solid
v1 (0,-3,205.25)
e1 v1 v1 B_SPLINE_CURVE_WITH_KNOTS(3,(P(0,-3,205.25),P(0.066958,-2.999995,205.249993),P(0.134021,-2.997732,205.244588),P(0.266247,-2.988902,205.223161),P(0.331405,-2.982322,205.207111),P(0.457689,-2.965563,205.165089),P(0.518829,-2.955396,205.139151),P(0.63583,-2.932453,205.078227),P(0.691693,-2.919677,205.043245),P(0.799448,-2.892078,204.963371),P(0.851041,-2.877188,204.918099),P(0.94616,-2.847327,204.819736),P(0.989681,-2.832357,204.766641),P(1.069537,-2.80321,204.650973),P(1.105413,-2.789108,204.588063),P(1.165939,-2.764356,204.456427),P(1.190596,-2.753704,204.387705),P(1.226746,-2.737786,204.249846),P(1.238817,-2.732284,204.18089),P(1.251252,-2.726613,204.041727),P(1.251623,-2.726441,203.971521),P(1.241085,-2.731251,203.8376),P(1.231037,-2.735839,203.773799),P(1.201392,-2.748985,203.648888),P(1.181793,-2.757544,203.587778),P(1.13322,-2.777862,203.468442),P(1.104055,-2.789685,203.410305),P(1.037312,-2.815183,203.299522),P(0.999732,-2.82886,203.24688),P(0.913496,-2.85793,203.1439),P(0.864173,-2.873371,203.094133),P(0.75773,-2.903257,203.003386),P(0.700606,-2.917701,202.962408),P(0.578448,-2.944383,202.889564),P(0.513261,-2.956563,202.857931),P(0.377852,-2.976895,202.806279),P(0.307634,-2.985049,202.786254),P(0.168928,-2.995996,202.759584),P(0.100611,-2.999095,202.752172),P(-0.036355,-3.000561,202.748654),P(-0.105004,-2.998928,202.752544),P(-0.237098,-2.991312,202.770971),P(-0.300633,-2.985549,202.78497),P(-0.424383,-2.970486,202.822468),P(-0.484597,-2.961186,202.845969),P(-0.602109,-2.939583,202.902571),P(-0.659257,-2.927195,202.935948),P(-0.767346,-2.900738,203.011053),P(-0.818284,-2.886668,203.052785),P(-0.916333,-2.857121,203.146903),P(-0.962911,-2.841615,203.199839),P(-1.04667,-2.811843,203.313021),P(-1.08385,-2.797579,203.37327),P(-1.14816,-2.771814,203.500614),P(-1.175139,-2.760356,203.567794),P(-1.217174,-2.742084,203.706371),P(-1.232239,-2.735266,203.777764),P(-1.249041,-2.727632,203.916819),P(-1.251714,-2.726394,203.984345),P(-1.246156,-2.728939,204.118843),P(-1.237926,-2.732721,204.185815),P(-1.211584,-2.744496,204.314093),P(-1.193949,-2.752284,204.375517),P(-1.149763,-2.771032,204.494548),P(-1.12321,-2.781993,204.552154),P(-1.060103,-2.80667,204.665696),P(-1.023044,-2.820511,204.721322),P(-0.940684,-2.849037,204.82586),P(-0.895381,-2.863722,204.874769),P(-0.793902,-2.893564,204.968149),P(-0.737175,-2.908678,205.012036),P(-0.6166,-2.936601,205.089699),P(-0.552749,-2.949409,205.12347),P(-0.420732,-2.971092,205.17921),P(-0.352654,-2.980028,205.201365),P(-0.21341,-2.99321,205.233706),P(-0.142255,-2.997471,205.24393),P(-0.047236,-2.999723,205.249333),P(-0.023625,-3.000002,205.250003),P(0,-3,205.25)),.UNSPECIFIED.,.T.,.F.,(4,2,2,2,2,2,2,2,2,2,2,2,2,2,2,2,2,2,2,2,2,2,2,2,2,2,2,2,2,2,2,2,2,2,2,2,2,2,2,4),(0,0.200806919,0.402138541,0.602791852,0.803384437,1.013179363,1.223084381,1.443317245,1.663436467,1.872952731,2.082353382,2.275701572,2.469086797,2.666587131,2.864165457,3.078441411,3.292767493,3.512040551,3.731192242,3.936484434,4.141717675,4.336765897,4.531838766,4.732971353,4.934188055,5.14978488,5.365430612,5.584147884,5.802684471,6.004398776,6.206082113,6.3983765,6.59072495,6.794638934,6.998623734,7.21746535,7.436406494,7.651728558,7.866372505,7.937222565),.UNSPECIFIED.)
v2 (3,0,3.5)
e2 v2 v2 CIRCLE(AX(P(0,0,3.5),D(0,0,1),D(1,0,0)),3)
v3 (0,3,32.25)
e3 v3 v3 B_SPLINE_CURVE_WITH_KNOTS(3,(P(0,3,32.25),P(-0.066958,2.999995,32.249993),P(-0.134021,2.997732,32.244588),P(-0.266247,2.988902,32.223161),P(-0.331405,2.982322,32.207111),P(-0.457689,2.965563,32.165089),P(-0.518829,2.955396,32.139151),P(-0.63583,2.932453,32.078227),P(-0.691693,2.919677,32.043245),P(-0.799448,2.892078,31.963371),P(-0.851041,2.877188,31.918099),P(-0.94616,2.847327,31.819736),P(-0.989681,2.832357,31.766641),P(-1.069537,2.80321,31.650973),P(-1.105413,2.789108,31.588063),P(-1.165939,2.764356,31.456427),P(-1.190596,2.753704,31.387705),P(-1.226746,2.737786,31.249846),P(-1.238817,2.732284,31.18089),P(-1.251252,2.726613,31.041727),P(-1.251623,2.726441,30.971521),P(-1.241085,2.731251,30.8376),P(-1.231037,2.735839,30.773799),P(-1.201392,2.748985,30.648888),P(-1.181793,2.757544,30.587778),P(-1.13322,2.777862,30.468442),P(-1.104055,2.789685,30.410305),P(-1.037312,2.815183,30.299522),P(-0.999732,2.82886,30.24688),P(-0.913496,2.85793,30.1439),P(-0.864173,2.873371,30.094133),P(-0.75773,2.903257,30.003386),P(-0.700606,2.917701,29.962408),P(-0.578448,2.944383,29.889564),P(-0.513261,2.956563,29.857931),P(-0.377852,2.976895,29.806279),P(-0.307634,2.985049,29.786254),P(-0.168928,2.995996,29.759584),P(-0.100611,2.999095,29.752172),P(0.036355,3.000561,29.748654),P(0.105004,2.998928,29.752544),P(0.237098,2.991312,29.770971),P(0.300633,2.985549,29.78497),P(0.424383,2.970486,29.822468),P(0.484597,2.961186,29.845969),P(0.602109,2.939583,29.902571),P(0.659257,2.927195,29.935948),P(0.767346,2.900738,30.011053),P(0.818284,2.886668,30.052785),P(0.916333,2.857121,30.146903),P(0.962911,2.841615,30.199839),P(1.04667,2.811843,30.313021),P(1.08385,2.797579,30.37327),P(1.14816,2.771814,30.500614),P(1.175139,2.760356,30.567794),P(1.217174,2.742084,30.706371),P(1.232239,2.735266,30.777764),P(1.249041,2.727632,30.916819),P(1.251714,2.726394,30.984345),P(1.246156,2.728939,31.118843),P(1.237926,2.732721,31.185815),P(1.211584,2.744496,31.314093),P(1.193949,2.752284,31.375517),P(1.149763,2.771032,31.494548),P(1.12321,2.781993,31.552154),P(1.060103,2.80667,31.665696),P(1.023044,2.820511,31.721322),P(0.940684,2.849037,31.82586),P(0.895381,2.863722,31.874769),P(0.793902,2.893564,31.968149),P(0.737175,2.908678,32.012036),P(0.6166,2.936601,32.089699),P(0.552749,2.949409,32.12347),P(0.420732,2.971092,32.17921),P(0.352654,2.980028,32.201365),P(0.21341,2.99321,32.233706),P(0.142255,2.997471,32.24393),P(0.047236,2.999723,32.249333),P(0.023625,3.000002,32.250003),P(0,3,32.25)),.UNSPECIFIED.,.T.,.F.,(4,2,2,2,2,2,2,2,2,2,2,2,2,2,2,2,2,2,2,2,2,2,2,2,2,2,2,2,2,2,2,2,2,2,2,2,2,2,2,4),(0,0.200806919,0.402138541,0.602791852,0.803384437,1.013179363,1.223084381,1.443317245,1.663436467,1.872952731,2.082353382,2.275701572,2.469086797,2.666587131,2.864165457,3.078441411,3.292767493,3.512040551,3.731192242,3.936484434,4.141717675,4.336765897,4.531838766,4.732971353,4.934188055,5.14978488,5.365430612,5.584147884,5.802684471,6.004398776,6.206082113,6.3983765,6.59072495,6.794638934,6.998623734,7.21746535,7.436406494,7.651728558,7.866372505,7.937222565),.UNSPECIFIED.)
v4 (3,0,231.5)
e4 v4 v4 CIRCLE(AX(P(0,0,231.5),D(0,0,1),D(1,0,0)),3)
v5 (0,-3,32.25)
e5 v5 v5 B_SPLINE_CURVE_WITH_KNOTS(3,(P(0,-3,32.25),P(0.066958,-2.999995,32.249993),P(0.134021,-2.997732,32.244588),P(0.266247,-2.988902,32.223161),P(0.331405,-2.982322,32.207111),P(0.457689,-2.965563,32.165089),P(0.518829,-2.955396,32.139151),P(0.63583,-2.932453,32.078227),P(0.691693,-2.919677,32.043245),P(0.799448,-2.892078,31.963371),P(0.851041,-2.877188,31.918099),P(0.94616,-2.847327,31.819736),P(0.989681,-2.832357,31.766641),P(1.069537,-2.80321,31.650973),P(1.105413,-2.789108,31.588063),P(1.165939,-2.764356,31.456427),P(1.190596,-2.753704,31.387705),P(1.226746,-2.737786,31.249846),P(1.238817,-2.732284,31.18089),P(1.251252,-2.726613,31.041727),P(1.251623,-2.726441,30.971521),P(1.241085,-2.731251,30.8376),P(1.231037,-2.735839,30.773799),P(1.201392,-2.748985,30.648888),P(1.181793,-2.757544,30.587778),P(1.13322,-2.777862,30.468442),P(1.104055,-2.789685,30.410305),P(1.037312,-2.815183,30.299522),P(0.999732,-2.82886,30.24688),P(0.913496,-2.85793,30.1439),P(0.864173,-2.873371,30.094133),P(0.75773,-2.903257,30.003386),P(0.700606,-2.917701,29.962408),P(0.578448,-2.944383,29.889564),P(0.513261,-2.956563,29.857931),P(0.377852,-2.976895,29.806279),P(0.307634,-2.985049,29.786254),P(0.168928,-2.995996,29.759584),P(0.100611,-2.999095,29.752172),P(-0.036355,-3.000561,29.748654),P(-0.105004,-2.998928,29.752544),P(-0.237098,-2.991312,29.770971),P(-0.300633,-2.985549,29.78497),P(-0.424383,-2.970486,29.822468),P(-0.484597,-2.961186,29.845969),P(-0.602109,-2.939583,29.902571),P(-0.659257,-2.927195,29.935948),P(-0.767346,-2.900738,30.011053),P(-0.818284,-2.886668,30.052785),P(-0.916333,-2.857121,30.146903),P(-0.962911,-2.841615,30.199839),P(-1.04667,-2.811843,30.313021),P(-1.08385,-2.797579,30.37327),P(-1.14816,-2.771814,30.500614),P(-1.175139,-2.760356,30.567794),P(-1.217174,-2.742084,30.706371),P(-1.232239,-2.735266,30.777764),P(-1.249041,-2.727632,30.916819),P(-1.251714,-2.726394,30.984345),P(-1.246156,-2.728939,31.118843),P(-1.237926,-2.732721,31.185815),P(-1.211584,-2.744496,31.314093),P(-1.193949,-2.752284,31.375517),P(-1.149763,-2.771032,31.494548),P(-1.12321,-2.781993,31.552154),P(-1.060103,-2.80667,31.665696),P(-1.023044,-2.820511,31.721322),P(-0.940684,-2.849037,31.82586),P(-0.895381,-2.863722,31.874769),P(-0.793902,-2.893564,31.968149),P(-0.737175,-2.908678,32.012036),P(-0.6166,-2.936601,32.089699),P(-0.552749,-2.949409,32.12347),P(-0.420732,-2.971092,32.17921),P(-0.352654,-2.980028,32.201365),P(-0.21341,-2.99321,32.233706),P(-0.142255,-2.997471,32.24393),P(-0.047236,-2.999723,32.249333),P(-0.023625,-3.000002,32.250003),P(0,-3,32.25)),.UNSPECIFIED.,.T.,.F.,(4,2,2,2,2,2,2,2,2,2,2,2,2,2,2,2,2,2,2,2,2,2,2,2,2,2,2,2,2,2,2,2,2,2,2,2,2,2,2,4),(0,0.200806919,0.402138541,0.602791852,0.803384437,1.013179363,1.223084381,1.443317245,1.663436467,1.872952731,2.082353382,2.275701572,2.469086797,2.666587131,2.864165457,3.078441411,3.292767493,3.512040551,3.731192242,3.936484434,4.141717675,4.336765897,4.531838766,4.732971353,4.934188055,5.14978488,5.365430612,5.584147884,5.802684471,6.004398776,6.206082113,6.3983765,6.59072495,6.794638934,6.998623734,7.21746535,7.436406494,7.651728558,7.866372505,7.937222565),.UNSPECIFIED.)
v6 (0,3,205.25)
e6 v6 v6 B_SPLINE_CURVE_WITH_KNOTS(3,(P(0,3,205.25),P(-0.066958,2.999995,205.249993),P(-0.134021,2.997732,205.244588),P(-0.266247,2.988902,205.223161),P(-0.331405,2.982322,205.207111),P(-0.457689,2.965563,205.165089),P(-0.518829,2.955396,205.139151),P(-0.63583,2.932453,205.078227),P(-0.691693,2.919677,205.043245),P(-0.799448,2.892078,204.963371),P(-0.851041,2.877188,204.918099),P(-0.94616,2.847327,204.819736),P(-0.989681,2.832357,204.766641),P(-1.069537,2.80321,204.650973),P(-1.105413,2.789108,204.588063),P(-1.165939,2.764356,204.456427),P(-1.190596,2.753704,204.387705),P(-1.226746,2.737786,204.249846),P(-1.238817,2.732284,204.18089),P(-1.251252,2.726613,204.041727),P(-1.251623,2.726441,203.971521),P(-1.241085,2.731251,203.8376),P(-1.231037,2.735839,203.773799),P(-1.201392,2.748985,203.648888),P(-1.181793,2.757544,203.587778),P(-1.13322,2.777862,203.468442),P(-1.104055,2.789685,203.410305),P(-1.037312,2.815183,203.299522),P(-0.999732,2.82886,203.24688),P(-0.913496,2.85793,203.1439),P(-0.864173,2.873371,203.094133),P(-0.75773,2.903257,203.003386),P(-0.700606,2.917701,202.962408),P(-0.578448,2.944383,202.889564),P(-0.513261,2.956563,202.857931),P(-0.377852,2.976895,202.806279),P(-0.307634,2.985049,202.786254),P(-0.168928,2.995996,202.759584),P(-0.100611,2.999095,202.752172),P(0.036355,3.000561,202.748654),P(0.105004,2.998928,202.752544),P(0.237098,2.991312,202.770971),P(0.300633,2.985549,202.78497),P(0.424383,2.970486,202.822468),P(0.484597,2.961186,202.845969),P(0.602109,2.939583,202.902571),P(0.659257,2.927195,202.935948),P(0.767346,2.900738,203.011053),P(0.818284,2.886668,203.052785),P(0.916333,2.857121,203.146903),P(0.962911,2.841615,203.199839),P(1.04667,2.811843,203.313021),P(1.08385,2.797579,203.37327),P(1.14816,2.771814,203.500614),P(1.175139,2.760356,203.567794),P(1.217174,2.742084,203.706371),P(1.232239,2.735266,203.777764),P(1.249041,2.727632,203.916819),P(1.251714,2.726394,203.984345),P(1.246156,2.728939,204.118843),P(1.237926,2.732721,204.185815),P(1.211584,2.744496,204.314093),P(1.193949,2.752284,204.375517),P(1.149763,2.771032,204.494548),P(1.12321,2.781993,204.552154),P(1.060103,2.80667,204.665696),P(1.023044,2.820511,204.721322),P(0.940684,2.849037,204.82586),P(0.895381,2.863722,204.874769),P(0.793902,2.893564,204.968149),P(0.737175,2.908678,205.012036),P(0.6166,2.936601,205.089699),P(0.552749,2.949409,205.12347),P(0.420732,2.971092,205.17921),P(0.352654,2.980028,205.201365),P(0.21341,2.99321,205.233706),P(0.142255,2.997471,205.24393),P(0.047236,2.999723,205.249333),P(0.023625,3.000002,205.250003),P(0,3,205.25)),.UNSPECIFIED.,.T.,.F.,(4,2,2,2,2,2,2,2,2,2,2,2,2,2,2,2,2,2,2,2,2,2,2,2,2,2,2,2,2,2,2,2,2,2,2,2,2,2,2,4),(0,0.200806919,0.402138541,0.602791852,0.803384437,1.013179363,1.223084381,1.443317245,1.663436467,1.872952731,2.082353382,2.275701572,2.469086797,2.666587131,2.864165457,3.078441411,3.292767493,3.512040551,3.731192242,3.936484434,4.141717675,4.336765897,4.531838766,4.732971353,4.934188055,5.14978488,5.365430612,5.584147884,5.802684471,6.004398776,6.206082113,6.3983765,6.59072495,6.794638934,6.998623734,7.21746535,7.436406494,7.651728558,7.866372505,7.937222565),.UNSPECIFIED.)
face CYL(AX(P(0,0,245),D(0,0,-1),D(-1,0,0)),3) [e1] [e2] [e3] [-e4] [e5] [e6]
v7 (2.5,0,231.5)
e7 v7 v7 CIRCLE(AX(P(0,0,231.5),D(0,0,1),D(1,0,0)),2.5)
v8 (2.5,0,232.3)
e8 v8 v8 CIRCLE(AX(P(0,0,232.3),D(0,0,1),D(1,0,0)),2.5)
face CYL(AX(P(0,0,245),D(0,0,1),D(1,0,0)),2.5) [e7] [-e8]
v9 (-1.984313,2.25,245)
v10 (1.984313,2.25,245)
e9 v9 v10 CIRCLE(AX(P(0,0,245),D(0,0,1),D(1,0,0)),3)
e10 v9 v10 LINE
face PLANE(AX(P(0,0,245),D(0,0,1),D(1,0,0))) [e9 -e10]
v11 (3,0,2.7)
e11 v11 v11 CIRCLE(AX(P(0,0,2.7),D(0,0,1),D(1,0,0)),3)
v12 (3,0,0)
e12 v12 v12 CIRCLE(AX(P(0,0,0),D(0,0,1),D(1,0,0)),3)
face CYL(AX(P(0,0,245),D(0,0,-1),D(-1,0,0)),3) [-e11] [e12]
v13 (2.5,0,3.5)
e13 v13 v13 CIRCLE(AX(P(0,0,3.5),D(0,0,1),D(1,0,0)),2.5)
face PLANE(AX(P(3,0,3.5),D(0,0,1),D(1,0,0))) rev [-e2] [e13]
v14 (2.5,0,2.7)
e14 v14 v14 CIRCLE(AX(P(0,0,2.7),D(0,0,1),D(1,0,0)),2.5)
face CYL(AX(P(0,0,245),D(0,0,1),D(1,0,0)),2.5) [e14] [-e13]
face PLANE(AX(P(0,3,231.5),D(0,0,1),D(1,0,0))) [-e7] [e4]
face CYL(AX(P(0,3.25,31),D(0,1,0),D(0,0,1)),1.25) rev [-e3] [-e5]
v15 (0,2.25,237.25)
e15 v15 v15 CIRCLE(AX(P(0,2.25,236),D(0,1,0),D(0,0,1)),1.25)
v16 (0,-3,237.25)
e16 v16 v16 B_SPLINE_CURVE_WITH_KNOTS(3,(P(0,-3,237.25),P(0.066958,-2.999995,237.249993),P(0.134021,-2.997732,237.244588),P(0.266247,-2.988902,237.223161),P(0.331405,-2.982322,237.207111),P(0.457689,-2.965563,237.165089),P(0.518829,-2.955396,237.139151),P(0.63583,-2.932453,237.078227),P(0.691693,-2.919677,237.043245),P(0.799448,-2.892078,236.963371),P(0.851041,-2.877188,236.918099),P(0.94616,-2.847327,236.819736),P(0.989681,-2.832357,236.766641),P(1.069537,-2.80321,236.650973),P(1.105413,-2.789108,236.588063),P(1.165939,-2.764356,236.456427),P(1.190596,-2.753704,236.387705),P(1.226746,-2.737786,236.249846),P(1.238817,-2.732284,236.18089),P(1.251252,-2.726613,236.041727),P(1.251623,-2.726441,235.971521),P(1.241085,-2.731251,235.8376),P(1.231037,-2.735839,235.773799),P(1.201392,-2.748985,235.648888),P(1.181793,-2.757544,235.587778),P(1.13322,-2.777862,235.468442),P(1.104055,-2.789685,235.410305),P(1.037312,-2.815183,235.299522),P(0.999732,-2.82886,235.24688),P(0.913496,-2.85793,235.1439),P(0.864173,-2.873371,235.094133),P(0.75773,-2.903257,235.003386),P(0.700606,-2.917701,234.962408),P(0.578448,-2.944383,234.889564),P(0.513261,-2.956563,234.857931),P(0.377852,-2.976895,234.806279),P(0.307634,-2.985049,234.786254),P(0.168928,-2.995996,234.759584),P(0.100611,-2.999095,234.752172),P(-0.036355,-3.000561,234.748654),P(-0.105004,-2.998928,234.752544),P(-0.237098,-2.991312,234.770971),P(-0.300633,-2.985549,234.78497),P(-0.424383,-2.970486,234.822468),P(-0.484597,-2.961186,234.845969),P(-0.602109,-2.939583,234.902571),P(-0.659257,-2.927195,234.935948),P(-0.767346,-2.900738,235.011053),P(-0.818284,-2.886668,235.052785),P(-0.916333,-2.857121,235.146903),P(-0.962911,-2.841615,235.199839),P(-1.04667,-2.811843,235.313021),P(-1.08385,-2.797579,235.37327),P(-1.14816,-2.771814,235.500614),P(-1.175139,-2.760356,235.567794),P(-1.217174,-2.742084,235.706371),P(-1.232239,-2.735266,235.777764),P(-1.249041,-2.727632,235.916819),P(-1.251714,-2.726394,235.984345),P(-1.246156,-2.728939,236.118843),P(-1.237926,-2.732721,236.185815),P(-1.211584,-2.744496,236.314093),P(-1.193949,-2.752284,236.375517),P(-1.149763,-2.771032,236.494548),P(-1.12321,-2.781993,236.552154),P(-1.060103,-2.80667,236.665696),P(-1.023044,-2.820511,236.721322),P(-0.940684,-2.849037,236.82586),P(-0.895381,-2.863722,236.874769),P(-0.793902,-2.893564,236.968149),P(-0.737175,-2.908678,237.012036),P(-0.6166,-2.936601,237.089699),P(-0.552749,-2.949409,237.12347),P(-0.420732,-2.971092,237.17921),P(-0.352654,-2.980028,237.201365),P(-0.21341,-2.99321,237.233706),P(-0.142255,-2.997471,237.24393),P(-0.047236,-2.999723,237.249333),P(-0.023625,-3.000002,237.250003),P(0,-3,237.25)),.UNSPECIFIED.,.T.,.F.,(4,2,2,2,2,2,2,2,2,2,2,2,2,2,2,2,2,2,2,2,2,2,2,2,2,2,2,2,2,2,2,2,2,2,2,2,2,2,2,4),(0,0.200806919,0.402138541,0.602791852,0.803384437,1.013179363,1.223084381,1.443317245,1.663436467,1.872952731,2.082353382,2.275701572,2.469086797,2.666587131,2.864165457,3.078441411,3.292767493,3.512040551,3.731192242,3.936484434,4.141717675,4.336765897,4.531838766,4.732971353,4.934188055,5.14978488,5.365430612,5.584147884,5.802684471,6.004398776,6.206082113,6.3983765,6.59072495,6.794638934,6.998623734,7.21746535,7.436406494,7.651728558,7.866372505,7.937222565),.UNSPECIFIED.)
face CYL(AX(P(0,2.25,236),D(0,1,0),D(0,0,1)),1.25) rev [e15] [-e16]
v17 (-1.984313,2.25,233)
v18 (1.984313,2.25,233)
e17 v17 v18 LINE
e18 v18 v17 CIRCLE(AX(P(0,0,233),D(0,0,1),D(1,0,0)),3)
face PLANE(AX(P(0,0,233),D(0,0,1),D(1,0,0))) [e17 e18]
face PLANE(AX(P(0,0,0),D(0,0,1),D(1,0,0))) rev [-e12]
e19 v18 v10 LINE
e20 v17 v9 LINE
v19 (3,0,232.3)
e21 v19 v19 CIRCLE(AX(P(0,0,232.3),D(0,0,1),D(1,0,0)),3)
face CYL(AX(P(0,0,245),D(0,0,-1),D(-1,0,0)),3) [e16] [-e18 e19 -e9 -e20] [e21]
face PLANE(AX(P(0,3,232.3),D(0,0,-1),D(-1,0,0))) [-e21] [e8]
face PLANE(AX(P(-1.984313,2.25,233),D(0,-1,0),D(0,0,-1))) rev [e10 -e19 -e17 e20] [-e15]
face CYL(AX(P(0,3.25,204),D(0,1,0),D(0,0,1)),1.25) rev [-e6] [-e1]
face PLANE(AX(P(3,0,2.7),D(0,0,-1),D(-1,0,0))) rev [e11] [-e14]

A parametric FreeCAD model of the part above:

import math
import FreeCAD as App
import Part
import Sketcher

doc = App.newDocument("Part")
body = doc.addObject("PartDesign::Body", "Body")

# Sketch on XY plane
sketch1 = doc.addObject("Sketcher::SketchObject", "Sketch")
body.addObject(sketch1)
sketch1.AttachmentSupport = (doc.XY_Plane, [""])
sketch1.MapMode = "FlatFace"
sketch1.addGeometry(Part.Circle(App.Vector(0, 0, 0), App.Vector(0, 0, 1), 3), False)
sketch1.addConstraint(Sketcher.Constraint("Coincident", 0, 3, -1, 1))
sketch1.addConstraint(Sketcher.Constraint("Diameter", 0, 6.0))
pad1 = doc.addObject("PartDesign::Pad", "Pad")
body.addObject(pad1)
pad1.Profile = sketch1
pad1.Length = 245

# Sketch on XY plane
sketch2 = doc.addObject("Sketcher::SketchObject", "Sketch001")
body.addObject(sketch2)
sketch2.AttachmentSupport = (doc.XY_Plane, [""])
sketch2.MapMode = "FlatFace"
sketch2.AttachmentOffset = App.Placement(App.Vector(0, 0, 245), App.Rotation())
sketch2.addGeometry(Part.LineSegment(App.Vector(-2, 2.2, 0), App.Vector(2, 2.2, 0)), False)
sketch2.addGeometry(Part.ArcOfCircle(Part.Circle(App.Vector(0, 0, 0), App.Vector(0, 0, 1), 3), math.radians(49), math.radians(131)), False)
sketch2.addConstraint(Sketcher.Constraint("Coincident", 0, 1, 1, 2))
sketch2.addConstraint(Sketcher.Constraint("Coincident", 1, 1, 0, 2))
sketch2.addConstraint(Sketcher.Constraint("Horizontal", 0))
sketch2.addConstraint(Sketcher.Constraint("Coincident", 1, 3, -1, 1))
sketch2.addConstraint(Sketcher.Constraint("Radius", 1, 3.0))
sketch2.addConstraint(Sketcher.Constraint("DistanceY", -1, 1, 0, 1, 2.25))
pocket1 = doc.addObject("PartDesign::Pocket", "Pocket")
body.addObject(pocket1)
pocket1.Profile = sketch2
pocket1.Length = 12

# Sketch on XZ plane
sketch3 = doc.addObject("Sketcher::SketchObject", "Sketch002")
body.addObject(sketch3)
sketch3.AttachmentSupport = (doc.XZ_Plane, [""])
sketch3.MapMode = "FlatFace"
sketch3.AttachmentOffset = App.Placement(App.Vector(0, 0, -2.25), App.Rotation())
sketch3.addGeometry(Part.Circle(App.Vector(0, 236, 0), App.Vector(0, 0, 1), 1.2), False)
sketch3.addConstraint(Sketcher.Constraint("PointOnObject", 0, 3, -2))
sketch3.addConstraint(Sketcher.Constraint("Diameter", 0, 2.5))
sketch3.addConstraint(Sketcher.Constraint("DistanceY", -1, 1, 0, 3, 236.0))
doc.recompute()
hole = doc.addObject("PartDesign::Hole", "Hole")
body.addObject(hole)
hole.Profile = sketch3
hole.ThreadType = "None"
hole.Diameter = 2.5
hole.DepthType = "ThroughAll"
hole.Reversed = True

# Sketch on YZ plane
sketch4 = doc.addObject("Sketcher::SketchObject", "Sketch003")
body.addObject(sketch4)
sketch4.AttachmentSupport = (doc.YZ_Plane, [""])
sketch4.MapMode = "FlatFace"
sketch4.addGeometry(Part.LineSegment(App.Vector(3, 232.3, 0), App.Vector(2.5, 232.3, 0)), False)
sketch4.addGeometry(Part.LineSegment(App.Vector(2.5, 232.3, 0), App.Vector(2.5, 231.5, 0)), False)
sketch4.addGeometry(Part.LineSegment(App.Vector(2.5, 231.5, 0), App.Vector(3, 231.5, 0)), False)
sketch4.addGeometry(Part.LineSegment(App.Vector(3, 231.5, 0), App.Vector(3, 232.3, 0)), False)
sketch4.addConstraint(Sketcher.Constraint("Coincident", 0, 2, 1, 1))
sketch4.addConstraint(Sketcher.Constraint("Coincident", 1, 2, 2, 1))
sketch4.addConstraint(Sketcher.Constraint("Coincident", 2, 2, 3, 1))
sketch4.addConstraint(Sketcher.Constraint("Coincident", 3, 2, 0, 1))
sketch4.addConstraint(Sketcher.Constraint("Horizontal", 0))
sketch4.addConstraint(Sketcher.Constraint("Vertical", 1))
sketch4.addConstraint(Sketcher.Constraint("Horizontal", 2))
sketch4.addConstraint(Sketcher.Constraint("Vertical", 3))
sketch4.addConstraint(Sketcher.Constraint("DistanceX", 0, 2, 0, 1, 0.5))
sketch4.addConstraint(Sketcher.Constraint("DistanceY", 1, 2, 1, 1, 0.8))
sketch4.addConstraint(Sketcher.Constraint("DistanceX", -1, 1, 2, 2, 3.0))
sketch4.addConstraint(Sketcher.Constraint("DistanceY", -1, 1, 0, 2, 232.3))
groove = doc.addObject("PartDesign::Groove", "Groove")
body.addObject(groove)
groove.Profile = sketch4
groove.ReferenceAxis = (sketch4, ["V_Axis"])
groove.Angle = 360

# Sketch on XZ plane
sketch5 = doc.addObject("Sketcher::SketchObject", "Sketch004")
body.addObject(sketch5)
sketch5.AttachmentSupport = (doc.XZ_Plane, [""])
sketch5.MapMode = "FlatFace"
sketch5.AttachmentOffset = App.Placement(App.Vector(0, 0, -3.25), App.Rotation())
sketch5.addGeometry(Part.Circle(App.Vector(0, 204, 0), App.Vector(0, 0, 1), 1.2), False)
sketch5.addGeometry(Part.Circle(App.Vector(0, 31, 0), App.Vector(0, 0, 1), 1.2), False)
sketch5.addConstraint(Sketcher.Constraint("Equal", 0, 1))
sketch5.addConstraint(Sketcher.Constraint("PointOnObject", 0, 3, -2))
sketch5.addConstraint(Sketcher.Constraint("PointOnObject", 1, 3, -2))
sketch5.addConstraint(Sketcher.Constraint("Diameter", 0, 2.5))
sketch5.addConstraint(Sketcher.Constraint("DistanceY", -1, 1, 0, 3, 204.0))
sketch5.addConstraint(Sketcher.Constraint("DistanceY", -1, 1, 1, 3, 31.0))
doc.recompute()
hole2 = doc.addObject("PartDesign::Hole", "Hole001")
body.addObject(hole2)
hole2.Profile = sketch5
hole2.ThreadType = "None"
hole2.Diameter = 2.5
hole2.DepthType = "ThroughAll"
hole2.Reversed = True

# Sketch on XZ plane
sketch6 = doc.addObject("Sketcher::SketchObject", "Sketch005")
body.addObject(sketch6)
sketch6.AttachmentSupport = (doc.XZ_Plane, [""])
sketch6.MapMode = "FlatFace"
sketch6.addGeometry(Part.LineSegment(App.Vector(2.5, 2.7, 0), App.Vector(2.5, 3.5, 0)), False)
sketch6.addGeometry(Part.LineSegment(App.Vector(2.5, 3.5, 0), App.Vector(3, 3.5, 0)), False)
sketch6.addGeometry(Part.LineSegment(App.Vector(3, 3.5, 0), App.Vector(3, 2.7, 0)), False)
sketch6.addGeometry(Part.LineSegment(App.Vector(3, 2.7, 0), App.Vector(2.5, 2.7, 0)), False)
sketch6.addConstraint(Sketcher.Constraint("Coincident", 0, 2, 1, 1))
sketch6.addConstraint(Sketcher.Constraint("Coincident", 1, 2, 2, 1))
sketch6.addConstraint(Sketcher.Constraint("Coincident", 2, 2, 3, 1))
sketch6.addConstraint(Sketcher.Constraint("Coincident", 3, 2, 0, 1))
sketch6.addConstraint(Sketcher.Constraint("Vertical", 0))
sketch6.addConstraint(Sketcher.Constraint("Horizontal", 1))
sketch6.addConstraint(Sketcher.Constraint("Vertical", 2))
sketch6.addConstraint(Sketcher.Constraint("Horizontal", 3))
sketch6.addConstraint(Sketcher.Constraint("DistanceX", 1, 1, 1, 2, 0.5))
sketch6.addConstraint(Sketcher.Constraint("DistanceY", 0, 1, 0, 2, 0.8))
sketch6.addConstraint(Sketcher.Constraint("DistanceX", -1, 1, 1, 2, 3.0))
sketch6.addConstraint(Sketcher.Constraint("DistanceY", -1, 1, 0, 2, 3.5))
groove2 = doc.addObject("PartDesign::Groove", "Groove001")
body.addObject(groove2)
groove2.Profile = sketch6
groove2.ReferenceAxis = (sketch6, ["V_Axis"])
groove2.Angle = 360

doc.recompute()
